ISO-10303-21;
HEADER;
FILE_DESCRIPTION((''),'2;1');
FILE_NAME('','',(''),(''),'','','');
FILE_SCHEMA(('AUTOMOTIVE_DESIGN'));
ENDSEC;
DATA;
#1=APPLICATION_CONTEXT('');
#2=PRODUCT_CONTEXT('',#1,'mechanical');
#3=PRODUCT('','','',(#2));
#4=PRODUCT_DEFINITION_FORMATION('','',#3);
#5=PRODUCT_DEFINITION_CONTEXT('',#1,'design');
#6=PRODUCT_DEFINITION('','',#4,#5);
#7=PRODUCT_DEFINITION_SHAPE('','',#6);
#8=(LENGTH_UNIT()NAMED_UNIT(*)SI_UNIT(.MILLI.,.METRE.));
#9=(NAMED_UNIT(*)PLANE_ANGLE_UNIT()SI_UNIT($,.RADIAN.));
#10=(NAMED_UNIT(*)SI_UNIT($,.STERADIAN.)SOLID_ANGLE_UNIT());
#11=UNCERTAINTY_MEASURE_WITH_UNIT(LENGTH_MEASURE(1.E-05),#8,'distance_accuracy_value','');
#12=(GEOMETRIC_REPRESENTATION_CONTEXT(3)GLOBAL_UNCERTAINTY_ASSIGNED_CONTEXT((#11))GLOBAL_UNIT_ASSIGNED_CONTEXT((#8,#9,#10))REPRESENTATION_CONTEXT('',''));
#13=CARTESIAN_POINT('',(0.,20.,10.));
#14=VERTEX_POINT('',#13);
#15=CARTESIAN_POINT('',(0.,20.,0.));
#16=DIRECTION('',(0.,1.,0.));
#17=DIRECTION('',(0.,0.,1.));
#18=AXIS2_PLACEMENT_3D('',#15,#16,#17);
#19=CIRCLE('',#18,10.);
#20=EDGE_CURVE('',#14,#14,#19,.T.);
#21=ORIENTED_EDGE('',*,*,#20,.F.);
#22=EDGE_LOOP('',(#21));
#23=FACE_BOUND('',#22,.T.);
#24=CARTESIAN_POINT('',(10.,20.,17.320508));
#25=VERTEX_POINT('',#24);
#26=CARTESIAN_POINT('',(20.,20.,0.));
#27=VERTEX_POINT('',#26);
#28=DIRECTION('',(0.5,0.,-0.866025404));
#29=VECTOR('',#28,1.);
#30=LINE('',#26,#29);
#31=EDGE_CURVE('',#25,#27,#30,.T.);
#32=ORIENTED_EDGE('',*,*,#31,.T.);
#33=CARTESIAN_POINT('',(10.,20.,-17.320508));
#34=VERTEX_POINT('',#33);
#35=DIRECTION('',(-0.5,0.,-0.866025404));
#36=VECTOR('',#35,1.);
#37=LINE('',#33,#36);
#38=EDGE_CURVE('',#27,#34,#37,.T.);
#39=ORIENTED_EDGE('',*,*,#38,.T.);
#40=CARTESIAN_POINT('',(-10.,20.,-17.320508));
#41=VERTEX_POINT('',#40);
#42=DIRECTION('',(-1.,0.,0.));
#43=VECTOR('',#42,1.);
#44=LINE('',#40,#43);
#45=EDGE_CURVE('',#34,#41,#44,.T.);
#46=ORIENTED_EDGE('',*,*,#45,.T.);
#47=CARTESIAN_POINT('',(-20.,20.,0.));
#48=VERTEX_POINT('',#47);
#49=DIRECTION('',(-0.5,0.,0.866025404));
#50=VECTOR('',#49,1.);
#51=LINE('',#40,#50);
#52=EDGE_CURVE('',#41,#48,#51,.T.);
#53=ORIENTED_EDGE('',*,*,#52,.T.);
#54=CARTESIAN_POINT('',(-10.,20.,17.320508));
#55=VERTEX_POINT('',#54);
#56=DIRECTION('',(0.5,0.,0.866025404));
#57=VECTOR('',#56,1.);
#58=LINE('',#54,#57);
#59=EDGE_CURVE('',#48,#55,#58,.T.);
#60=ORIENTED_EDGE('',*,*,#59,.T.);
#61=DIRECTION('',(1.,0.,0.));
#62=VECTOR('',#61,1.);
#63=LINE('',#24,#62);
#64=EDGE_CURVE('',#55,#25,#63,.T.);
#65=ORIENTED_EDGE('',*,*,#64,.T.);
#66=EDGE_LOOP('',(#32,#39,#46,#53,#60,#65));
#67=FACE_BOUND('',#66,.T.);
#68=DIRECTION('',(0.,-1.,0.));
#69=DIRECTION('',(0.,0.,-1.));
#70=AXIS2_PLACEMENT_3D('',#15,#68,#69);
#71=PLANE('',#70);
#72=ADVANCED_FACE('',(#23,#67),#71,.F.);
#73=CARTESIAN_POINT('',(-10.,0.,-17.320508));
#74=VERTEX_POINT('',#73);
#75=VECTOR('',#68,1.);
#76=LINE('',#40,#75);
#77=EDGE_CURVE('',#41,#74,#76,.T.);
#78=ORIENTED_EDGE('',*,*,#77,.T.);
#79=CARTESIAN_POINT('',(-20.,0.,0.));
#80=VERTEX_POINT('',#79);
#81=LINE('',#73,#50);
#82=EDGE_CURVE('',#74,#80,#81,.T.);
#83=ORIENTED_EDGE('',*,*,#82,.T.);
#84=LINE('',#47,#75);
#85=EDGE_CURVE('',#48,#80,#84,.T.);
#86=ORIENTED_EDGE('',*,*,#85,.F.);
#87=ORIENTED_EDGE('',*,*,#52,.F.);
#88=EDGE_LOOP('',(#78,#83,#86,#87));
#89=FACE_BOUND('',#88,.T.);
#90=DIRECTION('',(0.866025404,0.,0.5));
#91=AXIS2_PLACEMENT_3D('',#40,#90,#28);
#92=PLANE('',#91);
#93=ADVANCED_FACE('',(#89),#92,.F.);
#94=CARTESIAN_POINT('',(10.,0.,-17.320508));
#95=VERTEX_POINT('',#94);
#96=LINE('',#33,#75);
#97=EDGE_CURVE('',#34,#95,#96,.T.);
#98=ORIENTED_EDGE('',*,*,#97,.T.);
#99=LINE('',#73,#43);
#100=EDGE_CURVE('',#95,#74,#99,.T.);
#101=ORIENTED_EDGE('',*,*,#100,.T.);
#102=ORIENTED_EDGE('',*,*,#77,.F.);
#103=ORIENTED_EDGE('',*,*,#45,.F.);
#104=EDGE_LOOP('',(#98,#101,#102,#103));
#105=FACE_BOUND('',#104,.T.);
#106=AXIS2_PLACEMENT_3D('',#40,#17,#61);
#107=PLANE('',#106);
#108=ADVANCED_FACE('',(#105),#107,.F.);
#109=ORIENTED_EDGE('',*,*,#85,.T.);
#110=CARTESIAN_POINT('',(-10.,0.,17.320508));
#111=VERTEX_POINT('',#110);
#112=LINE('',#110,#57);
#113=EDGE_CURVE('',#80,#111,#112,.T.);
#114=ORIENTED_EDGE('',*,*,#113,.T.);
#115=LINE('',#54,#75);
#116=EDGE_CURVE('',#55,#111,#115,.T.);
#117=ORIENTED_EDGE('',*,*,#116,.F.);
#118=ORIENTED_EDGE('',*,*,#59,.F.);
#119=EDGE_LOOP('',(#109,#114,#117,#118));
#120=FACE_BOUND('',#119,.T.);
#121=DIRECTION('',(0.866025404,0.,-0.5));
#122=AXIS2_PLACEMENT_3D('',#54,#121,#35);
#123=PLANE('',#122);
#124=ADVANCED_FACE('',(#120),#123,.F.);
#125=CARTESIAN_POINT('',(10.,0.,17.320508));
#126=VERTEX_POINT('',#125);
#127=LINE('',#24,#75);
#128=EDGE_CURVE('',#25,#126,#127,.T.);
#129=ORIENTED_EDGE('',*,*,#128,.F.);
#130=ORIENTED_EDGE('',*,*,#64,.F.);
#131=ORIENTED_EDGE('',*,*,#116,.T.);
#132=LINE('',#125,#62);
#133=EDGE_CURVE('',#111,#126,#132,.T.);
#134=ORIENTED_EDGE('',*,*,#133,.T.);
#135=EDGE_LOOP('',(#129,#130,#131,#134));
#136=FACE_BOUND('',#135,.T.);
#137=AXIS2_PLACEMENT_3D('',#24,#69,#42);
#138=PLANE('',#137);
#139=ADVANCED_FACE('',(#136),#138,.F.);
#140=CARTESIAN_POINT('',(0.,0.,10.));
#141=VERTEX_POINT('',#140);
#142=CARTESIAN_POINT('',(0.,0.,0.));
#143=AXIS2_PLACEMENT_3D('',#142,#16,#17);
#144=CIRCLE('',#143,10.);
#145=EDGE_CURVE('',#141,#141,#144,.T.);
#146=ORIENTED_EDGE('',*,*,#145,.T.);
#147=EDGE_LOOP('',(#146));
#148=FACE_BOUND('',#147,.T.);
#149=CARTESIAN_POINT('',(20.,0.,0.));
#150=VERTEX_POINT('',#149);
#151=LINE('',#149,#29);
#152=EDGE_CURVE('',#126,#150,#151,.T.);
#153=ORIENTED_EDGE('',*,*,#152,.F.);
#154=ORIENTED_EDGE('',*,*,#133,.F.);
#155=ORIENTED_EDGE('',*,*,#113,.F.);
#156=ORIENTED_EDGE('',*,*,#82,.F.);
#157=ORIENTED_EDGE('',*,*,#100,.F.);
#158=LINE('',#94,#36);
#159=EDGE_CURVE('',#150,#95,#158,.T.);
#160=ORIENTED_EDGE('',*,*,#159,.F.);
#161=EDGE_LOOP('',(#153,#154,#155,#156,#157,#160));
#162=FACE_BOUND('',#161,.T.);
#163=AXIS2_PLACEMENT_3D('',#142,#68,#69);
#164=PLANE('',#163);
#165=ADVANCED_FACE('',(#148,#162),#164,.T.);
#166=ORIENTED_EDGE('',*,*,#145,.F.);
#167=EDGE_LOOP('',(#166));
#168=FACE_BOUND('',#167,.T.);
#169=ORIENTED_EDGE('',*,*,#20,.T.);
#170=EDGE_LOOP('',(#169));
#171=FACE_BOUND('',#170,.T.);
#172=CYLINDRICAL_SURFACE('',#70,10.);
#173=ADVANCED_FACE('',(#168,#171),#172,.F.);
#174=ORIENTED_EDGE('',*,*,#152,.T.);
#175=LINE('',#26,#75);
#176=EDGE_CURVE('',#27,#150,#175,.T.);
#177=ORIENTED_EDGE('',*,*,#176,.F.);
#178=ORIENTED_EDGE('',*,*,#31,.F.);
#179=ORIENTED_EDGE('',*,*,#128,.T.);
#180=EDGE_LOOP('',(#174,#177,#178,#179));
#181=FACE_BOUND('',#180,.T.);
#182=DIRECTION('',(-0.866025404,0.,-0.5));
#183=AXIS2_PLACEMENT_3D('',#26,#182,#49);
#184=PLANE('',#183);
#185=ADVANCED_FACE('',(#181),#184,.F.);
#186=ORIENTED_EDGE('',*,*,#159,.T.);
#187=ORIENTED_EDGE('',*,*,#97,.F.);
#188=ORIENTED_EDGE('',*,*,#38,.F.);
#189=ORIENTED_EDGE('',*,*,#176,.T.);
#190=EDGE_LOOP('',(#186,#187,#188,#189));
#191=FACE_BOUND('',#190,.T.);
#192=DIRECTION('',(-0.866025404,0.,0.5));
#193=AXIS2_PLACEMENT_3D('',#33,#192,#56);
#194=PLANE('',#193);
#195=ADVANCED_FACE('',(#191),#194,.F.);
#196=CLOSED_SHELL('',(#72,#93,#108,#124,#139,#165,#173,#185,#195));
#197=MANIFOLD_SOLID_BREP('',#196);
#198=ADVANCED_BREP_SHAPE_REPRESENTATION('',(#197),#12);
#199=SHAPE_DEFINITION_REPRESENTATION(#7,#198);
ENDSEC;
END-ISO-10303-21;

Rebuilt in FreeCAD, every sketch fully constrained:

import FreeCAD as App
import Part
import Sketcher
from FreeCAD import Vector
Q = App.Units.Quantity


def add_polygon(sketch, points):
    """Adds a closed chain of lines whose ends are joined by coincident constraints."""
    first, n = sketch.GeometryCount, len(points)
    for a, b in zip(points, points[1:] + points[:1]):
        sketch.addGeometry(Part.LineSegment(App.Vector(*a, 0), App.Vector(*b, 0)), False)
    for i in range(n):
        sketch.addConstraint(Sketcher.Constraint("Coincident", first + i, 2, first + (i + 1) % n, 1))

doc = App.newDocument("Part")
body = doc.addObject("PartDesign::Body", "Body")

# Sketch on XZ plane
sketch1 = body.newObject("Sketcher::SketchObject", "Sketch")
sketch1.AttachmentSupport = (doc.getObject("XZ_Plane"), [""])
sketch1.MapMode = "FlatFace"
add_polygon(sketch1, [(10, -17.320508), (-10, -17.320508), (-20, 0), (-10, 17.320508), (10, 17.320508), (20, 0)])  # lines 0-5
sketch1.addGeometry(Part.Circle(Vector(0, 0, 0), Vector(0, 0, 1), 10), False)  # 6
sketch1.addConstraint(Sketcher.Constraint("Horizontal", 0))
sketch1.addConstraint(Sketcher.Constraint("Horizontal", 3))
sketch1.addConstraint(Sketcher.Constraint("Coincident", 6, 3, -1, 1))
sketch1.addConstraint(Sketcher.Constraint("Symmetric", 0, 2, 3, 2, -1, 1))
sketch1.addConstraint(Sketcher.Constraint("Symmetric", 1, 2, 4, 2, -1, 1))
sketch1.addConstraint(Sketcher.Constraint("PointOnObject", 1, 2, -1))
sketch1.addConstraint(Sketcher.Constraint("Parallel", 2, 5))
sketch1.addConstraint(Sketcher.Constraint("Vertical", 0, 2, 2, 2))
sketch1.addConstraint(Sketcher.Constraint("Diameter", 6, 20.0))
sketch1.addConstraint(Sketcher.Constraint("DistanceX", 0, 2, 0, 1, 20.0))
sketch1.addConstraint(Sketcher.Constraint("Angle", 1, Q("120 deg")))
sketch1.addConstraint(Sketcher.Constraint("Distance", 1, 20.0))
pad1 = body.newObject("PartDesign::Pad", "Pad")
pad1.Profile = sketch1
pad1.Length = 20
pad1.Reversed = True

doc.recompute()
